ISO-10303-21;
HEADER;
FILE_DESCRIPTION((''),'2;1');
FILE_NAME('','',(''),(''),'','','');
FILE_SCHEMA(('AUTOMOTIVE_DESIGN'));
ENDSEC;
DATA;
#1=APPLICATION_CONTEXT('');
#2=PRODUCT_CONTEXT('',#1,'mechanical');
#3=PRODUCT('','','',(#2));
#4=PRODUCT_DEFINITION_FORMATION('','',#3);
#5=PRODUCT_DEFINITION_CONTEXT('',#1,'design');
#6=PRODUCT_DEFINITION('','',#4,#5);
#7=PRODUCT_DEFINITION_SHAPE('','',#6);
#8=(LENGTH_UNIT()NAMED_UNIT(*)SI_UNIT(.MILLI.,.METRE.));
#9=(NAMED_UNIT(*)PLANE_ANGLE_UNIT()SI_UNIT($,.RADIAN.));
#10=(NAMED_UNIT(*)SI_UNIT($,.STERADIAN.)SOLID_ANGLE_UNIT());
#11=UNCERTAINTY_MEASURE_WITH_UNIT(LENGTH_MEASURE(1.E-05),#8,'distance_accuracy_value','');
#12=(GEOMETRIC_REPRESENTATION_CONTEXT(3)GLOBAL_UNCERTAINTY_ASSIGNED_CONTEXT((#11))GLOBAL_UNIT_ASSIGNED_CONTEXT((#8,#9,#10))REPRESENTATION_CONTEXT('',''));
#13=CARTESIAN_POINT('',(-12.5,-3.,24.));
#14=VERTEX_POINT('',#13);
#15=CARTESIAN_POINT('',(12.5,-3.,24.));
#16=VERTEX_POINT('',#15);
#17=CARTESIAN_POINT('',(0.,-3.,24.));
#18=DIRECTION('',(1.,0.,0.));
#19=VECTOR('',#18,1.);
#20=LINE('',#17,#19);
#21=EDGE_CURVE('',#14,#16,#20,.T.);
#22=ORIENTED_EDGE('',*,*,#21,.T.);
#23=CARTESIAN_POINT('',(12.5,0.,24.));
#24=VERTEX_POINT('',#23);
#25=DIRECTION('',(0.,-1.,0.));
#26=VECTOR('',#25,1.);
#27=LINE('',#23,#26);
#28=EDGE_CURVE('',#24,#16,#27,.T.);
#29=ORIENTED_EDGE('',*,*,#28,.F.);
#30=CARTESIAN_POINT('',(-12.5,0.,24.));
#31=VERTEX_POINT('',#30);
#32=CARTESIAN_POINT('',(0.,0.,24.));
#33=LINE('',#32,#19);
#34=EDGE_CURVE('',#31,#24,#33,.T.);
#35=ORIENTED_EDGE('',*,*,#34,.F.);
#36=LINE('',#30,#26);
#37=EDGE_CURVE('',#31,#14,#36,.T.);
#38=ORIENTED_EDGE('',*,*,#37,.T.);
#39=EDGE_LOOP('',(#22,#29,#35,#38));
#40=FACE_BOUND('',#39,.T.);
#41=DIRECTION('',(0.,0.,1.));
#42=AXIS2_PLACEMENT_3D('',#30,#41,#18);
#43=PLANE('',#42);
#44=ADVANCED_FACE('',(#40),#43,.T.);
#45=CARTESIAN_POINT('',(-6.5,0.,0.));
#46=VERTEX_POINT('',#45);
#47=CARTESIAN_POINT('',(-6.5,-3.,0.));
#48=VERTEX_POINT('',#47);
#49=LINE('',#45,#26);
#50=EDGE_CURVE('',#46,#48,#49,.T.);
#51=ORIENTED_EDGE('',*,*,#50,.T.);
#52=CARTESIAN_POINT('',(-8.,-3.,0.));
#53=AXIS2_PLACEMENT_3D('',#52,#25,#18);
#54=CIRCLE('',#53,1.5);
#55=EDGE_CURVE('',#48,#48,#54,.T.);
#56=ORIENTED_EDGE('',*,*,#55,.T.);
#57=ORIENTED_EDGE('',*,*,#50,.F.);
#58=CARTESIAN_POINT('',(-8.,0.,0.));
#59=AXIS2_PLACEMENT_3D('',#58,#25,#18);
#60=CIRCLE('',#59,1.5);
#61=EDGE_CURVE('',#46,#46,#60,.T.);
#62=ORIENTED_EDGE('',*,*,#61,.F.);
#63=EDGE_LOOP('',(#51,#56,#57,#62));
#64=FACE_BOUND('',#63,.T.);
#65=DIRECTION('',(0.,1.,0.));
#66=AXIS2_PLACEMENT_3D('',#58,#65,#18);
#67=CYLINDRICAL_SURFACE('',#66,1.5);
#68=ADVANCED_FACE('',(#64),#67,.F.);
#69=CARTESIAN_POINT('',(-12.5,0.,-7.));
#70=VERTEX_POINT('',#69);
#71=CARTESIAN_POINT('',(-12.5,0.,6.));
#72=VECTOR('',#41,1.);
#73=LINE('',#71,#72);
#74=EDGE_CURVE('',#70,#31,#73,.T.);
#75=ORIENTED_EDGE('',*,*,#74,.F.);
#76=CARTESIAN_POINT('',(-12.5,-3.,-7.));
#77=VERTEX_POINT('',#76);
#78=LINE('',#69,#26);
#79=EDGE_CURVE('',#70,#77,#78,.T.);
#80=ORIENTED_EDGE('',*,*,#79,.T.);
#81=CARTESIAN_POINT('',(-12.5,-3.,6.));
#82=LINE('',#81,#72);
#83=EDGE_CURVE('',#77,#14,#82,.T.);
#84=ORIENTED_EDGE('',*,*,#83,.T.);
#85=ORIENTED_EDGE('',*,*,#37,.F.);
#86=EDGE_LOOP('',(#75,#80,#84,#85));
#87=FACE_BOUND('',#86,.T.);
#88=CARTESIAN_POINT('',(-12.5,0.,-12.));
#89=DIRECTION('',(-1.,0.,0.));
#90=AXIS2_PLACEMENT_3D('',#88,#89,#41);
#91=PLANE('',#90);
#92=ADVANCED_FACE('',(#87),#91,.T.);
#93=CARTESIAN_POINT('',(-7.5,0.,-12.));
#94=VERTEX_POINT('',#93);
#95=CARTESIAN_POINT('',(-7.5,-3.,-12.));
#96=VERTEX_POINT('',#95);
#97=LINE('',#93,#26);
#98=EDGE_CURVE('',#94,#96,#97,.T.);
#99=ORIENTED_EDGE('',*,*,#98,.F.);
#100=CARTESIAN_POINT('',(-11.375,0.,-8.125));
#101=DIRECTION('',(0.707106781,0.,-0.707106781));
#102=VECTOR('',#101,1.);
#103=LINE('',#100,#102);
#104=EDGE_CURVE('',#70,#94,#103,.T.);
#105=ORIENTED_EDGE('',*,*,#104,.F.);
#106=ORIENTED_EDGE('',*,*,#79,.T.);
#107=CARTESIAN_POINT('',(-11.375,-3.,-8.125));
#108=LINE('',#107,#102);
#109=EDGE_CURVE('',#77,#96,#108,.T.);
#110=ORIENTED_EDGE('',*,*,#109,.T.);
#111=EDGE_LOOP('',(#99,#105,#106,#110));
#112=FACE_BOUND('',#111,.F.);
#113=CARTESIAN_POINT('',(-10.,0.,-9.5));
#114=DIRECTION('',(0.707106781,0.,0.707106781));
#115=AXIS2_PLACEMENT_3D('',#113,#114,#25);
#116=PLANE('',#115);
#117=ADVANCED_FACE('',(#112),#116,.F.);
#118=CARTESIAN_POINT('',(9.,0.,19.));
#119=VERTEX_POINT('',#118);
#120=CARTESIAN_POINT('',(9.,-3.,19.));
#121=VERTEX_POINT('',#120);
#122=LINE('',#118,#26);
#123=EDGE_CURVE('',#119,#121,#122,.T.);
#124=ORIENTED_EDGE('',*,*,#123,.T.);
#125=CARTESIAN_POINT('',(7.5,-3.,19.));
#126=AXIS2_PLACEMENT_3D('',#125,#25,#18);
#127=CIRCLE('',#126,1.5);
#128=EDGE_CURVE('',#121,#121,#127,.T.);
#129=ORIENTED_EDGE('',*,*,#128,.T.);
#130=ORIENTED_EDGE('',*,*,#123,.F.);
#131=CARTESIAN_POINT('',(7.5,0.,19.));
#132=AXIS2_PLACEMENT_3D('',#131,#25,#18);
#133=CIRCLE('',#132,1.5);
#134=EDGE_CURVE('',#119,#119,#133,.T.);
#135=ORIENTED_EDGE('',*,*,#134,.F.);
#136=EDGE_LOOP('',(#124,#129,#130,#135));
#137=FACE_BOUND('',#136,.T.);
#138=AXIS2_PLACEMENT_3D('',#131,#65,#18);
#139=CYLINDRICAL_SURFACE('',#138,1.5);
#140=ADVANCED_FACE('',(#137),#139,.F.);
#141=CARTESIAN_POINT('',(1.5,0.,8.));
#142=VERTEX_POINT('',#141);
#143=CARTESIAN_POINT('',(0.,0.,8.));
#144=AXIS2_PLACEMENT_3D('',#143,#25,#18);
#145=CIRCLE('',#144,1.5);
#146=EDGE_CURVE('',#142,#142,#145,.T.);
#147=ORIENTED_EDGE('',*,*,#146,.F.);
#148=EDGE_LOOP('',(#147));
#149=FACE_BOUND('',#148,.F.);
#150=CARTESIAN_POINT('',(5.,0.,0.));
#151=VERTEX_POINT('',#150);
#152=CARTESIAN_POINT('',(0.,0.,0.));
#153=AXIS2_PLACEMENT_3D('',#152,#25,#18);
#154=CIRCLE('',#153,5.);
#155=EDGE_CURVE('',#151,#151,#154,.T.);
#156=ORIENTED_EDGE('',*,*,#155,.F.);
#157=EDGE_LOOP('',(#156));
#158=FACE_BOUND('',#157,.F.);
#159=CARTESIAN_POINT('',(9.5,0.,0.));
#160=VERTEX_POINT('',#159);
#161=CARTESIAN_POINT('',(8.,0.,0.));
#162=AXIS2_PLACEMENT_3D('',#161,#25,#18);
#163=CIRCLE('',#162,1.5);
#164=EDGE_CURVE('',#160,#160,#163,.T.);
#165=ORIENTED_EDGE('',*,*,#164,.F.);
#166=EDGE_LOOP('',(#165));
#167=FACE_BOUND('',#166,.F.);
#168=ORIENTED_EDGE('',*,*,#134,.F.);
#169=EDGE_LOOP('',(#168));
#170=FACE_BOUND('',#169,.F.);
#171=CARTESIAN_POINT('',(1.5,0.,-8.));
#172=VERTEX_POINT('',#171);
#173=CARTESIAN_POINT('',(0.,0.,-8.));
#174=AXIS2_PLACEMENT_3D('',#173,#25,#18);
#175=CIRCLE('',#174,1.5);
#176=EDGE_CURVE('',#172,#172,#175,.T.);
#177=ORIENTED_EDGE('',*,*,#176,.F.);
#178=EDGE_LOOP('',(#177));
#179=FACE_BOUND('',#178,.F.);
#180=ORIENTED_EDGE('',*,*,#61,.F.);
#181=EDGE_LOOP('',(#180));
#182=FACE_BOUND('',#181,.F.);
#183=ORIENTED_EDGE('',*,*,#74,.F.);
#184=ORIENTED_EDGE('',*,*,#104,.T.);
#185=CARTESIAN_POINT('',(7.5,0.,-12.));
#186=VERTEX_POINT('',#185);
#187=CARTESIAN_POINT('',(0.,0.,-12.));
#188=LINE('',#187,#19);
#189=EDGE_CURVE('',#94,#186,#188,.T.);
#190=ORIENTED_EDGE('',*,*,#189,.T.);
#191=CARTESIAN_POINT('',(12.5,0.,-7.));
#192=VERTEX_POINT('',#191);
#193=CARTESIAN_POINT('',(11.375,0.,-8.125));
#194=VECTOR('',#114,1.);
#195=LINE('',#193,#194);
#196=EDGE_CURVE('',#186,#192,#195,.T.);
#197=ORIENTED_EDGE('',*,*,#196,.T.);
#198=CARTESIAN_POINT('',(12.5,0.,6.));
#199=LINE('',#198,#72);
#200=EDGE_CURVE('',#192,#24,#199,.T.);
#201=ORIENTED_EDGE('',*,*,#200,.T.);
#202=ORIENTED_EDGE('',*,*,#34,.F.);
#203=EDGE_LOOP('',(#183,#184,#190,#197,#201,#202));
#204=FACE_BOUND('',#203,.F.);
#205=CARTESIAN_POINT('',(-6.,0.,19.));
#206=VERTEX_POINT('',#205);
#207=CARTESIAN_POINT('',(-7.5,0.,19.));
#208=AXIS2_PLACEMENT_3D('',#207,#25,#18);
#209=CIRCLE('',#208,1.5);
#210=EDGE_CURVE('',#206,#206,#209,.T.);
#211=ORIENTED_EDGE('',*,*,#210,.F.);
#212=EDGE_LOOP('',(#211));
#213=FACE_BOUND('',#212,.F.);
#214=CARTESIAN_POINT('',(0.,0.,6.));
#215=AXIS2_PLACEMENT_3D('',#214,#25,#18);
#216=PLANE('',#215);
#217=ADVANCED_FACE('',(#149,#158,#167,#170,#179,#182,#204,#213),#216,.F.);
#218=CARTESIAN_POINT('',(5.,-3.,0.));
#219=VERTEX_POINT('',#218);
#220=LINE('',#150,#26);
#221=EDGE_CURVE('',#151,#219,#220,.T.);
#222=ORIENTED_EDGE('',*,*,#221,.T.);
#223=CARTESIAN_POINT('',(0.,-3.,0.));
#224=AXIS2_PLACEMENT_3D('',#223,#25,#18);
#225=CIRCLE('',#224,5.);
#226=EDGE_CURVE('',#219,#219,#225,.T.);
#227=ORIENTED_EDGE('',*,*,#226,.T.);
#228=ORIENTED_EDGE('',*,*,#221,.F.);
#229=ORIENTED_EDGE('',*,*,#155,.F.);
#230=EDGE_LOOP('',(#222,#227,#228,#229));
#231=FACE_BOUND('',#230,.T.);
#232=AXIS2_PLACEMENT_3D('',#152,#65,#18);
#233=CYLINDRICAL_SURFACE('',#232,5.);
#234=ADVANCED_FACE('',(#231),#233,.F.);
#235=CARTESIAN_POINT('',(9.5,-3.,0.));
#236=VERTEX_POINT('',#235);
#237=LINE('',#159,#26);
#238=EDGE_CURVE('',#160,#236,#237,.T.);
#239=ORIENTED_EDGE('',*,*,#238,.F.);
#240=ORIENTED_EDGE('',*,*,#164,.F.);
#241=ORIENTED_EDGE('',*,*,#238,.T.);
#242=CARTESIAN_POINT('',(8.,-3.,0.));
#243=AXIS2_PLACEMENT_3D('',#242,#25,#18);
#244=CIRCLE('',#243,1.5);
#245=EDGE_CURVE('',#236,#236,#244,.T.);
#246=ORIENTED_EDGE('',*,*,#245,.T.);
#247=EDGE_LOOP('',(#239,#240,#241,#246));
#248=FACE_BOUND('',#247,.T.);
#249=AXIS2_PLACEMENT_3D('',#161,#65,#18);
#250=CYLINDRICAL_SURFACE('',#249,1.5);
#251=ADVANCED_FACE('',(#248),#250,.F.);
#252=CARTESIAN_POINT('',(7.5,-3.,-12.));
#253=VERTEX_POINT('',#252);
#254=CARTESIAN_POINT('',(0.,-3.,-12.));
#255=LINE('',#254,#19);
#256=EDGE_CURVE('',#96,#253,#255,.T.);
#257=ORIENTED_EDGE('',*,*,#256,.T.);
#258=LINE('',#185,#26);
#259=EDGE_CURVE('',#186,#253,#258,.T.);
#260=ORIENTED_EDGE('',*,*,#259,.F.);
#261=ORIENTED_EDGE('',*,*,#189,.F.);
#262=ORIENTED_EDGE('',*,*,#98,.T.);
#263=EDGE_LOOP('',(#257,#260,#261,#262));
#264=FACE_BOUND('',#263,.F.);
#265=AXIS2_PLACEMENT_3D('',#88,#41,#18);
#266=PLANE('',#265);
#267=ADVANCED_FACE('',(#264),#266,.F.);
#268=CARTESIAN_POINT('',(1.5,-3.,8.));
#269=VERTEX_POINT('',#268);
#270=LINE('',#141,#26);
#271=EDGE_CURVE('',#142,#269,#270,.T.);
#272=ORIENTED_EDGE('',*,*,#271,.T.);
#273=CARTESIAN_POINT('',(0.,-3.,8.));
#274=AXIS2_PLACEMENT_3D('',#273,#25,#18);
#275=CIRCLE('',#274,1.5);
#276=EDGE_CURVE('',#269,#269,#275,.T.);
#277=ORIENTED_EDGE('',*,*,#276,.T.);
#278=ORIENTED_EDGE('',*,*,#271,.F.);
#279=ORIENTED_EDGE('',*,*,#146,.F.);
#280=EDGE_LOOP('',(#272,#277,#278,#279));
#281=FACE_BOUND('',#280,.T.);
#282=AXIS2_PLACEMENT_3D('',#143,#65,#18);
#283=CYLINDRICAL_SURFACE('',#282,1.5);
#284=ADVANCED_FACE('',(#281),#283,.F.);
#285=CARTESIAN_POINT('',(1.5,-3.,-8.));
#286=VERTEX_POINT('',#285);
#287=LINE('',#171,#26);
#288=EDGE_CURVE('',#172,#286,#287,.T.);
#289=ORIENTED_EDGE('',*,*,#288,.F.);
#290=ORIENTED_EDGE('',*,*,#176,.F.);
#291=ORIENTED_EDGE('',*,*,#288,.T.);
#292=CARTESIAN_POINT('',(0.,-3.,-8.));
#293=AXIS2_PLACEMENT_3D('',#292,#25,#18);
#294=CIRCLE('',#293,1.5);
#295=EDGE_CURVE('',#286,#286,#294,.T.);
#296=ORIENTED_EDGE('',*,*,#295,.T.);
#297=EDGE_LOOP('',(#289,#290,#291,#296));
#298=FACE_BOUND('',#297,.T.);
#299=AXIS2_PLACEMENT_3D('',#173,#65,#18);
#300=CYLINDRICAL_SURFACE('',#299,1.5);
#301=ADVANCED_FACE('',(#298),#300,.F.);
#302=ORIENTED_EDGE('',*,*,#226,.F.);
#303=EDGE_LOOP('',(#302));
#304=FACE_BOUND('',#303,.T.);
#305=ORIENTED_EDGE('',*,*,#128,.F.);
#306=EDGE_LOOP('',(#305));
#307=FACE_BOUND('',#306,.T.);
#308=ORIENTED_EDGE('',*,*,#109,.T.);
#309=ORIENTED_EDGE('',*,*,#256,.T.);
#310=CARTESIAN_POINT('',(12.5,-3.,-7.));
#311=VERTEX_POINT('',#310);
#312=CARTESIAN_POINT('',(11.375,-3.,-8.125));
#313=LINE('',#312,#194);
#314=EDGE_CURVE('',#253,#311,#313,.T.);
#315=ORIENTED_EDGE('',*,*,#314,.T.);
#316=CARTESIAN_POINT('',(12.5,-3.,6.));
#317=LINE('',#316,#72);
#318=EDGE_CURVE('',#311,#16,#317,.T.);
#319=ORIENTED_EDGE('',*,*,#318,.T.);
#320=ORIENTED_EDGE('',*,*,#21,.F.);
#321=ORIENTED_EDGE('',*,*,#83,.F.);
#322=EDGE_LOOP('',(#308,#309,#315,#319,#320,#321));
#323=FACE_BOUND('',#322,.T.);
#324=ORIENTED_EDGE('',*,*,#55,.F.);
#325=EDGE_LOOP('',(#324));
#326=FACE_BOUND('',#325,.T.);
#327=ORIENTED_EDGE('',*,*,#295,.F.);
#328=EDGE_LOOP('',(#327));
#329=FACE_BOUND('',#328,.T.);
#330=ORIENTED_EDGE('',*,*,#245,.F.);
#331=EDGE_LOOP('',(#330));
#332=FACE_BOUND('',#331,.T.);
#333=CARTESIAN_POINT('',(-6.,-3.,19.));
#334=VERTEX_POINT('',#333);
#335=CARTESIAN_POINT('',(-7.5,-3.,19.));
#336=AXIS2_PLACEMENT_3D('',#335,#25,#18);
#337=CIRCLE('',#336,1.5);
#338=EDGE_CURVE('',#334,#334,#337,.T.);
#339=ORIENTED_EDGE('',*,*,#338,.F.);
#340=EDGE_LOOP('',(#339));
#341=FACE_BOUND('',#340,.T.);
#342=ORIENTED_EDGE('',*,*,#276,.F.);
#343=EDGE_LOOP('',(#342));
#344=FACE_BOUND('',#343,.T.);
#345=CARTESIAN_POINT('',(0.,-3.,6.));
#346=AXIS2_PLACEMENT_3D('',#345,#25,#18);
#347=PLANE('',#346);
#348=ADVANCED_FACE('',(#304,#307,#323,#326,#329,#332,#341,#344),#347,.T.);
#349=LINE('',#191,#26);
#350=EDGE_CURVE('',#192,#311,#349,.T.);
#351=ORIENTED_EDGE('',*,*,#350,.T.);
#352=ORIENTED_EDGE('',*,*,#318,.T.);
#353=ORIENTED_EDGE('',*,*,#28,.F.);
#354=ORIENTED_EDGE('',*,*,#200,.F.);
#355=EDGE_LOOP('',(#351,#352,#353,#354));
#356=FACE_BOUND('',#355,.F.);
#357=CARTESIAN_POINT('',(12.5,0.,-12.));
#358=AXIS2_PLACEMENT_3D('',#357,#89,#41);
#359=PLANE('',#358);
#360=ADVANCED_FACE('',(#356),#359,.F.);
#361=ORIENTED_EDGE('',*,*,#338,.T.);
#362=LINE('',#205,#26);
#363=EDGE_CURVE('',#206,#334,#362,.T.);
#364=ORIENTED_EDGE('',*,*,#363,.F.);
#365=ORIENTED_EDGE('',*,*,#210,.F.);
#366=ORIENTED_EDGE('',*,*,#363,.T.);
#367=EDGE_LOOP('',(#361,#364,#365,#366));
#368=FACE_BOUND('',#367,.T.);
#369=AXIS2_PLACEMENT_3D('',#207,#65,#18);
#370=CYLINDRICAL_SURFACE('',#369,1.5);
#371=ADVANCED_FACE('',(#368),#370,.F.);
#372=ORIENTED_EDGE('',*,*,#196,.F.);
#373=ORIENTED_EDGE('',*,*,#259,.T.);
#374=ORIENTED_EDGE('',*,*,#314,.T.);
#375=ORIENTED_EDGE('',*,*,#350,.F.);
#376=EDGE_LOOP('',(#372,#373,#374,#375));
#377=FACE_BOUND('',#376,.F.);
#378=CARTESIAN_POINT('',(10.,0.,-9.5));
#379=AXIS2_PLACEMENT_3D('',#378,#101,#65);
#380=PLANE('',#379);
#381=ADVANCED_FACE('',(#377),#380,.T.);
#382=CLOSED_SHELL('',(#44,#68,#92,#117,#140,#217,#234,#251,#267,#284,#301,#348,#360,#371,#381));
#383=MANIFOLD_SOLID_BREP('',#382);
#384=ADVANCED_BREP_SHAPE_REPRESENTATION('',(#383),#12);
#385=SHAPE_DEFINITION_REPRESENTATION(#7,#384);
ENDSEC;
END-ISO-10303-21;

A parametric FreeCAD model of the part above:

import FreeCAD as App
import Part
import Sketcher


def edges_at(feature, points):
    """Names of the edges that pass closest to the given points."""
    edges = feature.Shape.Edges
    near = lambda p: min(range(len(edges)), key=lambda i: edges[i].distToShape(Part.Vertex(*p))[0])
    return sorted({f"Edge{near(p) + 1}" for p in points})


def add_polygon(sketch, points):
    """Adds a closed chain of lines whose ends are joined by coincident constraints."""
    first, n = sketch.GeometryCount, len(points)
    for a, b in zip(points, points[1:] + points[:1]):
        sketch.addGeometry(Part.LineSegment(App.Vector(*a, 0), App.Vector(*b, 0)), False)
    for i in range(n):
        sketch.addConstraint(Sketcher.Constraint("Coincident", first + i, 2, first + (i + 1) % n, 1))

doc = App.newDocument("Part")
body = doc.addObject("PartDesign::Body", "Body")

# Sketch on XZ plane
sketch1 = body.newObject("Sketcher::SketchObject", "Sketch")
sketch1.AttachmentSupport = (doc.getObject("XZ_Plane"), [""])
sketch1.MapMode = "FlatFace"
add_polygon(sketch1, [(-12.5, 24), (-12.5, -12), (12.5, -12), (12.5, 24)])  # lines 0-3
sketch1.addGeometry(Part.Circle(App.Vector(-8, 0, 0), App.Vector(0, 0, 1), 1.5), False)  # 4
sketch1.addGeometry(Part.Circle(App.Vector(0, -8, 0), App.Vector(0, 0, 1), 1.5), False)  # 5
sketch1.addGeometry(Part.Circle(App.Vector(0, 0, 0), App.Vector(0, 0, 1), 5), False)  # 6
sketch1.addGeometry(Part.Circle(App.Vector(8, 0, 0), App.Vector(0, 0, 1), 1.5), False)  # 7
sketch1.addGeometry(Part.Circle(App.Vector(-7.5, 19, 0), App.Vector(0, 0, 1), 1.5), False)  # 8
sketch1.addGeometry(Part.Circle(App.Vector(0, 8, 0), App.Vector(0, 0, 1), 1.5), False)  # 9
sketch1.addGeometry(Part.Circle(App.Vector(7.5, 19, 0), App.Vector(0, 0, 1), 1.5), False)  # 10
sketch1.addConstraint(Sketcher.Constraint("Vertical", 0))
sketch1.addConstraint(Sketcher.Constraint("Horizontal", 1))
sketch1.addConstraint(Sketcher.Constraint("Vertical", 2))
sketch1.addConstraint(Sketcher.Constraint("Horizontal", 3))
sketch1.addConstraint(Sketcher.Constraint("Coincident", 6, 3, -1, 1))
sketch1.addConstraint(Sketcher.Constraint("Equal", 4, 5))
sketch1.addConstraint(Sketcher.Constraint("Equal", 5, 7))
sketch1.addConstraint(Sketcher.Constraint("Equal", 7, 8))
sketch1.addConstraint(Sketcher.Constraint("Equal", 8, 9))
sketch1.addConstraint(Sketcher.Constraint("Equal", 9, 10))
sketch1.addConstraint(Sketcher.Constraint("Symmetric", 4, 3, 7, 3, -1, 1))
sketch1.addConstraint(Sketcher.Constraint("Symmetric", 5, 3, 9, 3, -1, 1))
sketch1.addConstraint(Sketcher.Constraint("Symmetric", 8, 3, 10, 3, -2))
sketch1.addConstraint(Sketcher.Constraint("PointOnObject", 4, 3, -1))
sketch1.addConstraint(Sketcher.Constraint("PointOnObject", 5, 3, -2))
sketch1.addConstraint(Sketcher.Constraint("Diameter", 4, 3.0))
sketch1.addConstraint(Sketcher.Constraint("Diameter", 6, 10.0))
sketch1.addConstraint(Sketcher.Constraint("DistanceX", 1, 1, 1, 2, 25.0))
sketch1.addConstraint(Sketcher.Constraint("DistanceY", 0, 2, 0, 1, 36.0))
sketch1.addConstraint(Sketcher.Constraint("DistanceX", 4, 3, -1, 1, 8.0))
sketch1.addConstraint(Sketcher.Constraint("DistanceY", 5, 3, -1, 1, 8.0))
sketch1.addConstraint(Sketcher.Constraint("DistanceY", -1, 1, 8, 3, 19.0))
sketch1.addConstraint(Sketcher.Constraint("DistanceY", 0, 2, -1, 1, 12.0))
sketch1.addConstraint(Sketcher.Constraint("DistanceX", 8, 3, 10, 3, 15.0))
sketch1.addConstraint(Sketcher.Constraint("DistanceX", 10, 3, 2, 2, 5.0))
pad1 = body.newObject("PartDesign::Pad", "Pad")
pad1.Profile = sketch1
pad1.Length = 3
doc.recompute()

chamfer = body.newObject("PartDesign::Chamfer", "Chamfer")
chamfer.Base = (pad1, edges_at(pad1, [(-12.5, -1.5, -12), (12.5, -1.5, -12)]))
chamfer.Size = 5

doc.recompute()
